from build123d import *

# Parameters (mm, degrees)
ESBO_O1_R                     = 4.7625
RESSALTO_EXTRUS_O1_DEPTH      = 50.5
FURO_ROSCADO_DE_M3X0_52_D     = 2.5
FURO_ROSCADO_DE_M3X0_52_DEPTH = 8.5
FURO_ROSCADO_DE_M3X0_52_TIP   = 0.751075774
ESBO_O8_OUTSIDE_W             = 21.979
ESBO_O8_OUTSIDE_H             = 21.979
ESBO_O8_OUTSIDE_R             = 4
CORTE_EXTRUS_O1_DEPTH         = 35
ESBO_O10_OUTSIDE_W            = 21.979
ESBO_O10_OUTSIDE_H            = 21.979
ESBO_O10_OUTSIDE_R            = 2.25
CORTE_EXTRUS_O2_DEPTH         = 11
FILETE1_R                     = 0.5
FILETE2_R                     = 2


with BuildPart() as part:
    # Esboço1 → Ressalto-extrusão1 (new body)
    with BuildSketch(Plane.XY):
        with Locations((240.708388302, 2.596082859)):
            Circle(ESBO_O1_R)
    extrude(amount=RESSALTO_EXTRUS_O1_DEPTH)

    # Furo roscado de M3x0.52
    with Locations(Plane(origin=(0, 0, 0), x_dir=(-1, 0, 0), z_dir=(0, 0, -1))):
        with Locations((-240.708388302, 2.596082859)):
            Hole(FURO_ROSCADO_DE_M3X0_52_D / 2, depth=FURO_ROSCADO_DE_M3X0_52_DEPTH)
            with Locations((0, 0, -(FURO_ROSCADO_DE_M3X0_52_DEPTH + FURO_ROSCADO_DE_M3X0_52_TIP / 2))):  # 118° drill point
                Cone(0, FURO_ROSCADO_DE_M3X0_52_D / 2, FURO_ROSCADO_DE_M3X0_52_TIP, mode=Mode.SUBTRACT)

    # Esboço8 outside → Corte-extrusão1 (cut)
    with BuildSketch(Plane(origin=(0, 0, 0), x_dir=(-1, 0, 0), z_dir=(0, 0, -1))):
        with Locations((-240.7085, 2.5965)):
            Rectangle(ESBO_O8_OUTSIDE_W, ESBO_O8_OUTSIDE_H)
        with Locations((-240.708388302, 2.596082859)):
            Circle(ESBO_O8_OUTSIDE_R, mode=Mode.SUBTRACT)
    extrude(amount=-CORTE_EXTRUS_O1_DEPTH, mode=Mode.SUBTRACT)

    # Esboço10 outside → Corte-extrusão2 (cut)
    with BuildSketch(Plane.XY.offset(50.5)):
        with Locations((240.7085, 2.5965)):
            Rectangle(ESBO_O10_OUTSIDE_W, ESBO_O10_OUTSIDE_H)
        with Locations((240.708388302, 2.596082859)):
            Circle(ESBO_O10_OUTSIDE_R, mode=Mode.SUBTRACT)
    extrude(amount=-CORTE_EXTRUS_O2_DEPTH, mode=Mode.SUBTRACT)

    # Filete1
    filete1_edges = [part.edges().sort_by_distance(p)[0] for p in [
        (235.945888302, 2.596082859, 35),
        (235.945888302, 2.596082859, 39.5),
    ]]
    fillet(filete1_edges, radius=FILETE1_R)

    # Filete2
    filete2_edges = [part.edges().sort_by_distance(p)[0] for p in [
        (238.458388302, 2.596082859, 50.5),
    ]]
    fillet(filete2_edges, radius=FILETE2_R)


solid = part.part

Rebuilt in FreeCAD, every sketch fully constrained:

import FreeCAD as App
import Part
import Sketcher

V = App.Vector


def edges_at(feature, points):
    """Names of the edges that pass closest to the given points."""
    edges = feature.Shape.Edges
    near = lambda p: min(range(len(edges)), key=lambda i: edges[i].distToShape(Part.Vertex(*p))[0])
    return sorted({f"Edge{near(p) + 1}" for p in points})


def add_polygon(sketch, points):
    """Adds a closed chain of lines whose ends are joined by coincident constraints."""
    first, n = sketch.GeometryCount, len(points)
    for a, b in zip(points, points[1:] + points[:1]):
        sketch.addGeometry(Part.LineSegment(App.Vector(*a, 0), App.Vector(*b, 0)), False)
    for i in range(n):
        sketch.addConstraint(Sketcher.Constraint("Coincident", first + i, 2, first + (i + 1) % n, 1))

doc = App.newDocument("Part")
body = doc.addObject("PartDesign::Body", "Body")

sketch1 = body.newObject("Sketcher::SketchObject", "Sketch")
sketch1.AttachmentSupport = (doc.getObject("XY_Plane"), [""])
sketch1.MapMode = "FlatFace"
sketch1.addGeometry(Part.Circle(V(240.7, 2.6, 0), V(0, 0, 1), 4.8), False)
sketch1.addConstraint([
    Sketcher.Constraint("Diameter", 0, 9.525),
    Sketcher.Constraint("DistanceX", -1, 1, 0, 3, 240.708388),
    Sketcher.Constraint("DistanceY", -1, 1, 0, 3, 2.596083),
])
pad1 = body.newObject("PartDesign::Pad", "Pad")
pad1.Profile = sketch1
pad1.Length = 50.5

sketch2 = body.newObject("Sketcher::SketchObject", "Sketch001")
sketch2.AttachmentSupport = (doc.getObject("XY_Plane"), [""])
sketch2.MapMode = "FlatFace"
sketch2.addGeometry(Part.Circle(V(240.7, 2.6, 0), V(0, 0, 1), 1.2), False)
sketch2.addConstraint([
    Sketcher.Constraint("Diameter", 0, 2.5),
    Sketcher.Constraint("DistanceX", -1, 1, 0, 3, 240.708388),
    Sketcher.Constraint("DistanceY", -1, 1, 0, 3, 2.596083),
])
doc.recompute()
hole = body.newObject("PartDesign::Hole", "Hole")
hole.Profile = sketch2
hole.ThreadType = "None"
hole.Diameter = 2.5
hole.DepthType = "Dimension"
hole.Depth = 8.5
hole.DrillPoint = "Angled"
hole.DrillPointAngle = 118
hole.Reversed = True

sketch3 = body.newObject("Sketcher::SketchObject", "Sketch002")
sketch3.AttachmentSupport = (doc.getObject("XY_Plane"), [""])
sketch3.MapMode = "FlatFace"
add_polygon(sketch3, [(251.7, 13.6), (251.7, -8.4), (229.7, -8.4), (229.7, 13.6)])
sketch3.addGeometry(Part.Circle(V(240.7, 2.6, 0), V(0, 0, 1), 4), False)
sketch3.addConstraint([
    Sketcher.Constraint("Vertical", 0),
    Sketcher.Constraint("Horizontal", 1),
    Sketcher.Constraint("Vertical", 2),
    Sketcher.Constraint("Horizontal", 3),
    Sketcher.Constraint("Equal", 3, 0),
    Sketcher.Constraint("Diameter", 4, 8.0),
    Sketcher.Constraint("DistanceX", 1, 2, 1, 1, 21.979),
    Sketcher.Constraint("DistanceX", -1, 1, 0, 2, 251.698),
    Sketcher.Constraint("DistanceY", 0, 2, -1, 1, 8.393),
    Sketcher.Constraint("DistanceX", -1, 1, 4, 3, 240.708388),
    Sketcher.Constraint("DistanceY", -1, 1, 4, 3, 2.596083),
])
pocket1 = body.newObject("PartDesign::Pocket", "Pocket")
pocket1.Profile = sketch3
pocket1.Length = 35
pocket1.Reversed = True

sketch4 = body.newObject("Sketcher::SketchObject", "Sketch003")
sketch4.AttachmentSupport = (doc.getObject("XY_Plane"), [""])
sketch4.MapMode = "FlatFace"
sketch4.AttachmentOffset = App.Placement(V(0, 0, 50.5), App.Rotation())
add_polygon(sketch4, [(229.7, 13.6), (229.7, -8.4), (251.7, -8.4), (251.7, 13.6)])
sketch4.addGeometry(Part.Circle(V(240.7, 2.6, 0), V(0, 0, 1), 2.2), False)
sketch4.addConstraint([
    Sketcher.Constraint("Vertical", 0),
    Sketcher.Constraint("Horizontal", 1),
    Sketcher.Constraint("Vertical", 2),
    Sketcher.Constraint("Horizontal", 3),
    Sketcher.Constraint("Equal", 3, 0),
    Sketcher.Constraint("Diameter", 4, 4.5),
    Sketcher.Constraint("DistanceX", 1, 1, 1, 2, 21.979),
    Sketcher.Constraint("DistanceX", -1, 1, 0, 2, 229.719),
    Sketcher.Constraint("DistanceY", 0, 2, -1, 1, 8.393),
    Sketcher.Constraint("DistanceX", -1, 1, 4, 3, 240.708388),
    Sketcher.Constraint("DistanceY", -1, 1, 4, 3, 2.596083),
])
pocket2 = body.newObject("PartDesign::Pocket", "Pocket001")
pocket2.Profile = sketch4
pocket2.Length = 11
doc.recompute()

fillet = body.newObject("PartDesign::Fillet", "Fillet")
fillet.Base = (pocket2, edges_at(pocket2, [(235.946, 2.596, 35), (235.946, 2.596, 39.5)]))
fillet.Radius = 0.5
doc.recompute()

fillet2 = body.newObject("PartDesign::Fillet", "Fillet001")
fillet2.Base = (fillet, edges_at(fillet, [(238.458, 2.596, 50.5)]))
fillet2.Radius = 2

doc.recompute()
